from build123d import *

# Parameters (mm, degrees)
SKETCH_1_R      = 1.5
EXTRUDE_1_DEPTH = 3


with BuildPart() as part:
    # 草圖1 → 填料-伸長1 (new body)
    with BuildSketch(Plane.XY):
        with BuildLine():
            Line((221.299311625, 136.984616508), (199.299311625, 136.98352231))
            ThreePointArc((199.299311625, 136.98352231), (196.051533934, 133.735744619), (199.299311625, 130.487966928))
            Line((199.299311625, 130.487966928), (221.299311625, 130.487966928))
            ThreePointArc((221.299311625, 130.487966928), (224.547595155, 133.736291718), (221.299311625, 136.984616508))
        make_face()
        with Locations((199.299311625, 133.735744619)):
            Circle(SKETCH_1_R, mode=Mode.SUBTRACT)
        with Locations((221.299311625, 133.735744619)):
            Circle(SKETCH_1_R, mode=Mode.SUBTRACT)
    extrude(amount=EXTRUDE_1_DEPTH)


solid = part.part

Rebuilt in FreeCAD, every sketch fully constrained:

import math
import FreeCAD as App
import Part
import Sketcher

V = App.Vector
Q = App.Units.Quantity

doc = App.newDocument("Part")
body = doc.addObject("PartDesign::Body", "Body")

sketch1 = body.newObject("Sketcher::SketchObject", "Sketch")
sketch1.AttachmentSupport = (doc.getObject("XY_Plane"), [""])
sketch1.MapMode = "FlatFace"
sketch1.addGeometry([
    Part.LineSegment(V(221.299312, 136.984617, 0), V(199.299312, 136.983522, 0)),
    Part.ArcOfCircle(Part.Circle(V(199.299312, 133.735745, 0), V(0, 0, 1), 3.247778), math.radians(90), math.radians(270)),
    Part.LineSegment(V(199.299312, 130.487967, 0), V(221.299312, 130.487967, 0)),
    Part.ArcOfCircle(Part.Circle(V(221.29927, 133.736292, 0), V(0, 0, 1), 3.248325), math.radians(-89.999272), math.radians(89.999272)),
    Part.Circle(V(199.299312, 133.735745, 0), V(0, 0, 1), 1.5),
    Part.Circle(V(221.299312, 133.735745, 0), V(0, 0, 1), 1.5),
], False)
sketch1.addConstraint([
    Sketcher.Constraint("Coincident", 0, 2, 1, 1),
    Sketcher.Constraint("Tangent", 1, 2, 2, 1),
    Sketcher.Constraint("Coincident", 2, 2, 3, 1),
    Sketcher.Constraint("Coincident", 3, 2, 0, 1),
    Sketcher.Constraint("Horizontal", 2),
    Sketcher.Constraint("Coincident", 4, 3, 1, 3),
    Sketcher.Constraint("Equal", 4, 5),
    Sketcher.Constraint("Horizontal", 4, 3, 5, 3),
    Sketcher.Constraint("Vertical", 4, 3, 0, 2),
    Sketcher.Constraint("Vertical", 5, 3, 2, 2),
    Sketcher.Constraint("Vertical", 2, 2, 3, 2),
    Sketcher.Constraint("Diameter", 4, Q("3 mm")),
    Sketcher.Constraint("DistanceX", 2, 1, 2, 2, Q("22 mm")),
    Sketcher.Constraint("Radius", 1, Q("3.247778 mm")),
    Sketcher.Constraint("Radius", 3, Q("3.248325 mm")),
    Sketcher.Constraint("DistanceX", -1, 1, 1, 3, Q("199.299312 mm")),
    Sketcher.Constraint("DistanceX", -1, 1, 3, 3, Q("221.29927 mm")),
    Sketcher.Constraint("DistanceY", -1, 1, 3, 3, Q("133.736292 mm")),
])
pad1 = body.newObject("PartDesign::Pad", "Pad")
pad1.Profile = sketch1
pad1.Length = 3

doc.recompute()
